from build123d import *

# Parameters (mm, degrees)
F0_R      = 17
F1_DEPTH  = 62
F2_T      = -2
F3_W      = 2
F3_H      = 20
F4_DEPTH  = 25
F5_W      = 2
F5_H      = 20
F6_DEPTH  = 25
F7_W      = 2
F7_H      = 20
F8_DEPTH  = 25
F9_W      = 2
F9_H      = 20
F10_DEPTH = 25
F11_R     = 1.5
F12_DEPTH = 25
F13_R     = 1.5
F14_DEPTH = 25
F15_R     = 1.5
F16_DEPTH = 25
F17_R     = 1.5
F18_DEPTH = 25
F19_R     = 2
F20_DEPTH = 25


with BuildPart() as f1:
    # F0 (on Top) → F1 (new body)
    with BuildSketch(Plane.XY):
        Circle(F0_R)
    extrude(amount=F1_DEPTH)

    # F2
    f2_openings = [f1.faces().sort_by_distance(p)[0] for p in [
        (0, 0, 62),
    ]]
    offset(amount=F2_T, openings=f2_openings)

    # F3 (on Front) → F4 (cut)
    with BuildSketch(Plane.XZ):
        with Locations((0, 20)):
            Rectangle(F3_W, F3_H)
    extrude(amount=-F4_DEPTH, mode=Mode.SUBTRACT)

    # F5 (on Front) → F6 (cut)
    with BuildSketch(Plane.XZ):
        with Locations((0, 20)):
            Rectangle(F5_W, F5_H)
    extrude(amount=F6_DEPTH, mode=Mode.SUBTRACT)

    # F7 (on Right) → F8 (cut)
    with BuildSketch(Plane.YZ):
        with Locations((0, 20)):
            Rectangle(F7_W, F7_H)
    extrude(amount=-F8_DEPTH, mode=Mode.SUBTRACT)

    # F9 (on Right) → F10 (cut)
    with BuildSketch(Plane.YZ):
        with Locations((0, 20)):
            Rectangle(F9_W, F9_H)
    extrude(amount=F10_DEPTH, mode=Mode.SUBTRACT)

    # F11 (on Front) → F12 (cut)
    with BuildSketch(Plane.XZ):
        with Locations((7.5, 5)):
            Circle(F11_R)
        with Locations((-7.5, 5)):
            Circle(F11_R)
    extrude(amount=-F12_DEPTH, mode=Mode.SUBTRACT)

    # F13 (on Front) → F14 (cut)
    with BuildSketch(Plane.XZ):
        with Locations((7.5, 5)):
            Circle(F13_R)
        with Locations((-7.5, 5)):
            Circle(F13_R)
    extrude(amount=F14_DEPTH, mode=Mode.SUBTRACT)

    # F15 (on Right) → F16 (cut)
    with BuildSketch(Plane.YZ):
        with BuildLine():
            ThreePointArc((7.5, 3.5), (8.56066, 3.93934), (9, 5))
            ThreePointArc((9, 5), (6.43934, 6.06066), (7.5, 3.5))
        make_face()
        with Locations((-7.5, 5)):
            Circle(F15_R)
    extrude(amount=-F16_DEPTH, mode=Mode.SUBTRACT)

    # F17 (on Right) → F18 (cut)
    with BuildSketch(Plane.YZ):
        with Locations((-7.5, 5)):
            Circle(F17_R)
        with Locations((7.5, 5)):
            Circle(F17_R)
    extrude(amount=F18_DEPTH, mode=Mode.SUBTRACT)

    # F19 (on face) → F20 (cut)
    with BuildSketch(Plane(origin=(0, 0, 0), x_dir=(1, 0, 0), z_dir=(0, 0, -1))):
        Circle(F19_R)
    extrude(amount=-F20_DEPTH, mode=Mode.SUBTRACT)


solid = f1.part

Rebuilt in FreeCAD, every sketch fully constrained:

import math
import FreeCAD as App
import Part
import Sketcher
from FreeCAD import Vector


def faces_at(feature, points):
    """Names of the faces that lie closest to the given points."""
    faces = feature.Shape.Faces
    near = lambda p: min(range(len(faces)), key=lambda i: faces[i].distToShape(Part.Vertex(*p))[0])
    return sorted({f"Face{near(p) + 1}" for p in points})


def add_polygon(sketch, points):
    """Adds a closed chain of lines whose ends are joined by coincident constraints."""
    first, n = sketch.GeometryCount, len(points)
    for a, b in zip(points, points[1:] + points[:1]):
        sketch.addGeometry(Part.LineSegment(App.Vector(*a, 0), App.Vector(*b, 0)), False)
    for i in range(n):
        sketch.addConstraint(Sketcher.Constraint("Coincident", first + i, 2, first + (i + 1) % n, 1))

doc = App.newDocument("Part")
body = doc.addObject("PartDesign::Body", "Body")

# Sketch on XY plane
sketch1 = body.newObject("Sketcher::SketchObject", "Sketch")
sketch1.AttachmentSupport = (doc.getObject("XY_Plane"), [""])
sketch1.MapMode = "FlatFace"
sketch1.addGeometry(Part.Circle(Vector(0, 0, 0), Vector(0, 0, 1), 17), False)
sketch1.addConstraint(Sketcher.Constraint("Coincident", 0, 3, -1, 1))
sketch1.addConstraint(Sketcher.Constraint("Diameter", 0, 34.0))
pad1 = body.newObject("PartDesign::Pad", "Pad")
pad1.Profile = sketch1
pad1.Length = 62
doc.recompute()

thickness = body.newObject("PartDesign::Thickness", "Thickness")
thickness.Base = (pad1, faces_at(pad1, [(0, 0, 62)]))
thickness.Value = 2
thickness.Reversed = True
thickness.Join = "Arc"

# Sketch on XZ plane
sketch2 = body.newObject("Sketcher::SketchObject", "Sketch001")
sketch2.AttachmentSupport = (doc.getObject("XZ_Plane"), [""])
sketch2.MapMode = "FlatFace"
add_polygon(sketch2, [(-1, 30), (-1, 10), (1, 10), (1, 30)])  # lines 0-3
sketch2.addConstraint(Sketcher.Constraint("Vertical", 0))
sketch2.addConstraint(Sketcher.Constraint("Horizontal", 1))
sketch2.addConstraint(Sketcher.Constraint("Vertical", 2))
sketch2.addConstraint(Sketcher.Constraint("Horizontal", 3))
sketch2.addConstraint(Sketcher.Constraint("DistanceX", 1, 1, 1, 2, 2.0))
sketch2.addConstraint(Sketcher.Constraint("DistanceY", 0, 2, 0, 1, 20.0))
sketch2.addConstraint(Sketcher.Constraint("DistanceX", 0, 2, -1, 1, 1.0))
sketch2.addConstraint(Sketcher.Constraint("DistanceY", -1, 1, 0, 2, 10.0))
pocket1 = body.newObject("PartDesign::Pocket", "Pocket")
pocket1.Profile = sketch2
pocket1.Length = 25

# Sketch on XZ plane
sketch3 = body.newObject("Sketcher::SketchObject", "Sketch002")
sketch3.AttachmentSupport = (doc.getObject("XZ_Plane"), [""])
sketch3.MapMode = "FlatFace"
add_polygon(sketch3, [(-1, 30), (-1, 10), (1, 10), (1, 30)])  # lines 0-3
sketch3.addConstraint(Sketcher.Constraint("Vertical", 0))
sketch3.addConstraint(Sketcher.Constraint("Horizontal", 1))
sketch3.addConstraint(Sketcher.Constraint("Vertical", 2))
sketch3.addConstraint(Sketcher.Constraint("Horizontal", 3))
sketch3.addConstraint(Sketcher.Constraint("DistanceX", 1, 1, 1, 2, 2.0))
sketch3.addConstraint(Sketcher.Constraint("DistanceY", 0, 2, 0, 1, 20.0))
sketch3.addConstraint(Sketcher.Constraint("DistanceX", 0, 2, -1, 1, 1.0))
sketch3.addConstraint(Sketcher.Constraint("DistanceY", -1, 1, 0, 2, 10.0))
pocket2 = body.newObject("PartDesign::Pocket", "Pocket001")
pocket2.Profile = sketch3
pocket2.Length = 25
pocket2.Reversed = True

# Sketch on YZ plane
sketch4 = body.newObject("Sketcher::SketchObject", "Sketch003")
sketch4.AttachmentSupport = (doc.getObject("YZ_Plane"), [""])
sketch4.MapMode = "FlatFace"
add_polygon(sketch4, [(-1, 30), (-1, 10), (1, 10), (1, 30)])  # lines 0-3
sketch4.addConstraint(Sketcher.Constraint("Vertical", 0))
sketch4.addConstraint(Sketcher.Constraint("Horizontal", 1))
sketch4.addConstraint(Sketcher.Constraint("Vertical", 2))
sketch4.addConstraint(Sketcher.Constraint("Horizontal", 3))
sketch4.addConstraint(Sketcher.Constraint("DistanceX", 1, 1, 1, 2, 2.0))
sketch4.addConstraint(Sketcher.Constraint("DistanceY", 0, 2, 0, 1, 20.0))
sketch4.addConstraint(Sketcher.Constraint("DistanceX", 0, 2, -1, 1, 1.0))
sketch4.addConstraint(Sketcher.Constraint("DistanceY", -1, 1, 0, 2, 10.0))
pocket3 = body.newObject("PartDesign::Pocket", "Pocket002")
pocket3.Profile = sketch4
pocket3.Length = 25

# Sketch on YZ plane
sketch5 = body.newObject("Sketcher::SketchObject", "Sketch004")
sketch5.AttachmentSupport = (doc.getObject("YZ_Plane"), [""])
sketch5.MapMode = "FlatFace"
add_polygon(sketch5, [(-1, 30), (-1, 10), (1, 10), (1, 30)])  # lines 0-3
sketch5.addConstraint(Sketcher.Constraint("Vertical", 0))
sketch5.addConstraint(Sketcher.Constraint("Horizontal", 1))
sketch5.addConstraint(Sketcher.Constraint("Vertical", 2))
sketch5.addConstraint(Sketcher.Constraint("Horizontal", 3))
sketch5.addConstraint(Sketcher.Constraint("DistanceX", 1, 1, 1, 2, 2.0))
sketch5.addConstraint(Sketcher.Constraint("DistanceY", 0, 2, 0, 1, 20.0))
sketch5.addConstraint(Sketcher.Constraint("DistanceX", 0, 2, -1, 1, 1.0))
sketch5.addConstraint(Sketcher.Constraint("DistanceY", -1, 1, 0, 2, 10.0))
pocket4 = body.newObject("PartDesign::Pocket", "Pocket003")
pocket4.Profile = sketch5
pocket4.Length = 25
pocket4.Reversed = True

# Sketch on XZ plane
sketch6 = body.newObject("Sketcher::SketchObject", "Sketch005")
sketch6.AttachmentSupport = (doc.getObject("XZ_Plane"), [""])
sketch6.MapMode = "FlatFace"
sketch6.addGeometry(Part.Circle(Vector(7.5, 5, 0), Vector(0, 0, 1), 1.5), False)
sketch6.addGeometry(Part.Circle(Vector(-7.5, 5, 0), Vector(0, 0, 1), 1.5), False)
sketch6.addConstraint(Sketcher.Constraint("Equal", 0, 1))
sketch6.addConstraint(Sketcher.Constraint("Symmetric", 0, 3, 1, 3, -2))
sketch6.addConstraint(Sketcher.Constraint("Diameter", 0, 3.0))
sketch6.addConstraint(Sketcher.Constraint("DistanceY", -1, 1, 0, 3, 5.0))
sketch6.addConstraint(Sketcher.Constraint("DistanceX", 1, 3, 0, 3, 15.0))
pocket5 = body.newObject("PartDesign::Pocket", "Pocket004")
pocket5.Profile = sketch6
pocket5.Length = 25

# Sketch on XZ plane
sketch7 = body.newObject("Sketcher::SketchObject", "Sketch006")
sketch7.AttachmentSupport = (doc.getObject("XZ_Plane"), [""])
sketch7.MapMode = "FlatFace"
sketch7.addGeometry(Part.Circle(Vector(7.5, 5, 0), Vector(0, 0, 1), 1.5), False)
sketch7.addGeometry(Part.Circle(Vector(-7.5, 5, 0), Vector(0, 0, 1), 1.5), False)
sketch7.addConstraint(Sketcher.Constraint("Equal", 0, 1))
sketch7.addConstraint(Sketcher.Constraint("Symmetric", 0, 3, 1, 3, -2))
sketch7.addConstraint(Sketcher.Constraint("Diameter", 0, 3.0))
sketch7.addConstraint(Sketcher.Constraint("DistanceY", -1, 1, 0, 3, 5.0))
sketch7.addConstraint(Sketcher.Constraint("DistanceX", 1, 3, 0, 3, 15.0))
pocket6 = body.newObject("PartDesign::Pocket", "Pocket005")
pocket6.Profile = sketch7
pocket6.Length = 25
pocket6.Reversed = True

# Sketch on YZ plane
sketch8 = body.newObject("Sketcher::SketchObject", "Sketch007")
sketch8.AttachmentSupport = (doc.getObject("YZ_Plane"), [""])
sketch8.MapMode = "FlatFace"
sketch8.addGeometry(Part.ArcOfCircle(Part.Circle(Vector(7.5, 5, 0), Vector(0, 0, 1), 1.5), math.radians(-90), math.radians(0)), False)
sketch8.addGeometry(Part.ArcOfCircle(Part.Circle(Vector(7.5, 5, 0), Vector(0, 0, 1), 1.5), math.radians(0), math.radians(270)), False)
sketch8.addGeometry(Part.Circle(Vector(-7.5, 5, 0), Vector(0, 0, 1), 1.5), False)
sketch8.addConstraint(Sketcher.Constraint("Tangent", 0, 1, 1, 2))
sketch8.addConstraint(Sketcher.Constraint("Coincident", 1, 1, 0, 2))
sketch8.addConstraint(Sketcher.Constraint("Equal", 1, 2))
sketch8.addConstraint(Sketcher.Constraint("Symmetric", 0, 3, 2, 3, -2))
sketch8.addConstraint(Sketcher.Constraint("Horizontal", 2, 3, 1, 1))
sketch8.addConstraint(Sketcher.Constraint("Vertical", 1, 3, 0, 1))
sketch8.addConstraint(Sketcher.Constraint("Diameter", 2, 3.0))
sketch8.addConstraint(Sketcher.Constraint("DistanceY", -1, 1, 0, 3, 5.000001))
sketch8.addConstraint(Sketcher.Constraint("DistanceX", -1, 1, 1, 1, 9.0))
pocket7 = body.newObject("PartDesign::Pocket", "Pocket006")
pocket7.Profile = sketch8
pocket7.Length = 25

# Sketch on YZ plane
sketch9 = body.newObject("Sketcher::SketchObject", "Sketch008")
sketch9.AttachmentSupport = (doc.getObject("YZ_Plane"), [""])
sketch9.MapMode = "FlatFace"
sketch9.addGeometry(Part.Circle(Vector(-7.5, 5, 0), Vector(0, 0, 1), 1.5), False)
sketch9.addGeometry(Part.Circle(Vector(7.5, 5, 0), Vector(0, 0, 1), 1.5), False)
sketch9.addConstraint(Sketcher.Constraint("Equal", 0, 1))
sketch9.addConstraint(Sketcher.Constraint("Symmetric", 0, 3, 1, 3, -2))
sketch9.addConstraint(Sketcher.Constraint("Diameter", 0, 3.0))
sketch9.addConstraint(Sketcher.Constraint("DistanceY", -1, 1, 0, 3, 5.0))
sketch9.addConstraint(Sketcher.Constraint("DistanceX", 0, 3, 1, 3, 15.0))
pocket8 = body.newObject("PartDesign::Pocket", "Pocket007")
pocket8.Profile = sketch9
pocket8.Length = 25
pocket8.Reversed = True

# Sketch on XY plane
sketch10 = body.newObject("Sketcher::SketchObject", "Sketch009")
sketch10.AttachmentSupport = (doc.getObject("XY_Plane"), [""])
sketch10.MapMode = "FlatFace"
sketch10.addGeometry(Part.Circle(Vector(0, 0, 0), Vector(0, 0, 1), 2), False)
sketch10.addConstraint(Sketcher.Constraint("Coincident", 0, 3, -1, 1))
sketch10.addConstraint(Sketcher.Constraint("Diameter", 0, 4.0))
pocket9 = body.newObject("PartDesign::Pocket", "Pocket008")
pocket9.Profile = sketch10
pocket9.Length = 25
pocket9.Reversed = True

doc.recompute()
